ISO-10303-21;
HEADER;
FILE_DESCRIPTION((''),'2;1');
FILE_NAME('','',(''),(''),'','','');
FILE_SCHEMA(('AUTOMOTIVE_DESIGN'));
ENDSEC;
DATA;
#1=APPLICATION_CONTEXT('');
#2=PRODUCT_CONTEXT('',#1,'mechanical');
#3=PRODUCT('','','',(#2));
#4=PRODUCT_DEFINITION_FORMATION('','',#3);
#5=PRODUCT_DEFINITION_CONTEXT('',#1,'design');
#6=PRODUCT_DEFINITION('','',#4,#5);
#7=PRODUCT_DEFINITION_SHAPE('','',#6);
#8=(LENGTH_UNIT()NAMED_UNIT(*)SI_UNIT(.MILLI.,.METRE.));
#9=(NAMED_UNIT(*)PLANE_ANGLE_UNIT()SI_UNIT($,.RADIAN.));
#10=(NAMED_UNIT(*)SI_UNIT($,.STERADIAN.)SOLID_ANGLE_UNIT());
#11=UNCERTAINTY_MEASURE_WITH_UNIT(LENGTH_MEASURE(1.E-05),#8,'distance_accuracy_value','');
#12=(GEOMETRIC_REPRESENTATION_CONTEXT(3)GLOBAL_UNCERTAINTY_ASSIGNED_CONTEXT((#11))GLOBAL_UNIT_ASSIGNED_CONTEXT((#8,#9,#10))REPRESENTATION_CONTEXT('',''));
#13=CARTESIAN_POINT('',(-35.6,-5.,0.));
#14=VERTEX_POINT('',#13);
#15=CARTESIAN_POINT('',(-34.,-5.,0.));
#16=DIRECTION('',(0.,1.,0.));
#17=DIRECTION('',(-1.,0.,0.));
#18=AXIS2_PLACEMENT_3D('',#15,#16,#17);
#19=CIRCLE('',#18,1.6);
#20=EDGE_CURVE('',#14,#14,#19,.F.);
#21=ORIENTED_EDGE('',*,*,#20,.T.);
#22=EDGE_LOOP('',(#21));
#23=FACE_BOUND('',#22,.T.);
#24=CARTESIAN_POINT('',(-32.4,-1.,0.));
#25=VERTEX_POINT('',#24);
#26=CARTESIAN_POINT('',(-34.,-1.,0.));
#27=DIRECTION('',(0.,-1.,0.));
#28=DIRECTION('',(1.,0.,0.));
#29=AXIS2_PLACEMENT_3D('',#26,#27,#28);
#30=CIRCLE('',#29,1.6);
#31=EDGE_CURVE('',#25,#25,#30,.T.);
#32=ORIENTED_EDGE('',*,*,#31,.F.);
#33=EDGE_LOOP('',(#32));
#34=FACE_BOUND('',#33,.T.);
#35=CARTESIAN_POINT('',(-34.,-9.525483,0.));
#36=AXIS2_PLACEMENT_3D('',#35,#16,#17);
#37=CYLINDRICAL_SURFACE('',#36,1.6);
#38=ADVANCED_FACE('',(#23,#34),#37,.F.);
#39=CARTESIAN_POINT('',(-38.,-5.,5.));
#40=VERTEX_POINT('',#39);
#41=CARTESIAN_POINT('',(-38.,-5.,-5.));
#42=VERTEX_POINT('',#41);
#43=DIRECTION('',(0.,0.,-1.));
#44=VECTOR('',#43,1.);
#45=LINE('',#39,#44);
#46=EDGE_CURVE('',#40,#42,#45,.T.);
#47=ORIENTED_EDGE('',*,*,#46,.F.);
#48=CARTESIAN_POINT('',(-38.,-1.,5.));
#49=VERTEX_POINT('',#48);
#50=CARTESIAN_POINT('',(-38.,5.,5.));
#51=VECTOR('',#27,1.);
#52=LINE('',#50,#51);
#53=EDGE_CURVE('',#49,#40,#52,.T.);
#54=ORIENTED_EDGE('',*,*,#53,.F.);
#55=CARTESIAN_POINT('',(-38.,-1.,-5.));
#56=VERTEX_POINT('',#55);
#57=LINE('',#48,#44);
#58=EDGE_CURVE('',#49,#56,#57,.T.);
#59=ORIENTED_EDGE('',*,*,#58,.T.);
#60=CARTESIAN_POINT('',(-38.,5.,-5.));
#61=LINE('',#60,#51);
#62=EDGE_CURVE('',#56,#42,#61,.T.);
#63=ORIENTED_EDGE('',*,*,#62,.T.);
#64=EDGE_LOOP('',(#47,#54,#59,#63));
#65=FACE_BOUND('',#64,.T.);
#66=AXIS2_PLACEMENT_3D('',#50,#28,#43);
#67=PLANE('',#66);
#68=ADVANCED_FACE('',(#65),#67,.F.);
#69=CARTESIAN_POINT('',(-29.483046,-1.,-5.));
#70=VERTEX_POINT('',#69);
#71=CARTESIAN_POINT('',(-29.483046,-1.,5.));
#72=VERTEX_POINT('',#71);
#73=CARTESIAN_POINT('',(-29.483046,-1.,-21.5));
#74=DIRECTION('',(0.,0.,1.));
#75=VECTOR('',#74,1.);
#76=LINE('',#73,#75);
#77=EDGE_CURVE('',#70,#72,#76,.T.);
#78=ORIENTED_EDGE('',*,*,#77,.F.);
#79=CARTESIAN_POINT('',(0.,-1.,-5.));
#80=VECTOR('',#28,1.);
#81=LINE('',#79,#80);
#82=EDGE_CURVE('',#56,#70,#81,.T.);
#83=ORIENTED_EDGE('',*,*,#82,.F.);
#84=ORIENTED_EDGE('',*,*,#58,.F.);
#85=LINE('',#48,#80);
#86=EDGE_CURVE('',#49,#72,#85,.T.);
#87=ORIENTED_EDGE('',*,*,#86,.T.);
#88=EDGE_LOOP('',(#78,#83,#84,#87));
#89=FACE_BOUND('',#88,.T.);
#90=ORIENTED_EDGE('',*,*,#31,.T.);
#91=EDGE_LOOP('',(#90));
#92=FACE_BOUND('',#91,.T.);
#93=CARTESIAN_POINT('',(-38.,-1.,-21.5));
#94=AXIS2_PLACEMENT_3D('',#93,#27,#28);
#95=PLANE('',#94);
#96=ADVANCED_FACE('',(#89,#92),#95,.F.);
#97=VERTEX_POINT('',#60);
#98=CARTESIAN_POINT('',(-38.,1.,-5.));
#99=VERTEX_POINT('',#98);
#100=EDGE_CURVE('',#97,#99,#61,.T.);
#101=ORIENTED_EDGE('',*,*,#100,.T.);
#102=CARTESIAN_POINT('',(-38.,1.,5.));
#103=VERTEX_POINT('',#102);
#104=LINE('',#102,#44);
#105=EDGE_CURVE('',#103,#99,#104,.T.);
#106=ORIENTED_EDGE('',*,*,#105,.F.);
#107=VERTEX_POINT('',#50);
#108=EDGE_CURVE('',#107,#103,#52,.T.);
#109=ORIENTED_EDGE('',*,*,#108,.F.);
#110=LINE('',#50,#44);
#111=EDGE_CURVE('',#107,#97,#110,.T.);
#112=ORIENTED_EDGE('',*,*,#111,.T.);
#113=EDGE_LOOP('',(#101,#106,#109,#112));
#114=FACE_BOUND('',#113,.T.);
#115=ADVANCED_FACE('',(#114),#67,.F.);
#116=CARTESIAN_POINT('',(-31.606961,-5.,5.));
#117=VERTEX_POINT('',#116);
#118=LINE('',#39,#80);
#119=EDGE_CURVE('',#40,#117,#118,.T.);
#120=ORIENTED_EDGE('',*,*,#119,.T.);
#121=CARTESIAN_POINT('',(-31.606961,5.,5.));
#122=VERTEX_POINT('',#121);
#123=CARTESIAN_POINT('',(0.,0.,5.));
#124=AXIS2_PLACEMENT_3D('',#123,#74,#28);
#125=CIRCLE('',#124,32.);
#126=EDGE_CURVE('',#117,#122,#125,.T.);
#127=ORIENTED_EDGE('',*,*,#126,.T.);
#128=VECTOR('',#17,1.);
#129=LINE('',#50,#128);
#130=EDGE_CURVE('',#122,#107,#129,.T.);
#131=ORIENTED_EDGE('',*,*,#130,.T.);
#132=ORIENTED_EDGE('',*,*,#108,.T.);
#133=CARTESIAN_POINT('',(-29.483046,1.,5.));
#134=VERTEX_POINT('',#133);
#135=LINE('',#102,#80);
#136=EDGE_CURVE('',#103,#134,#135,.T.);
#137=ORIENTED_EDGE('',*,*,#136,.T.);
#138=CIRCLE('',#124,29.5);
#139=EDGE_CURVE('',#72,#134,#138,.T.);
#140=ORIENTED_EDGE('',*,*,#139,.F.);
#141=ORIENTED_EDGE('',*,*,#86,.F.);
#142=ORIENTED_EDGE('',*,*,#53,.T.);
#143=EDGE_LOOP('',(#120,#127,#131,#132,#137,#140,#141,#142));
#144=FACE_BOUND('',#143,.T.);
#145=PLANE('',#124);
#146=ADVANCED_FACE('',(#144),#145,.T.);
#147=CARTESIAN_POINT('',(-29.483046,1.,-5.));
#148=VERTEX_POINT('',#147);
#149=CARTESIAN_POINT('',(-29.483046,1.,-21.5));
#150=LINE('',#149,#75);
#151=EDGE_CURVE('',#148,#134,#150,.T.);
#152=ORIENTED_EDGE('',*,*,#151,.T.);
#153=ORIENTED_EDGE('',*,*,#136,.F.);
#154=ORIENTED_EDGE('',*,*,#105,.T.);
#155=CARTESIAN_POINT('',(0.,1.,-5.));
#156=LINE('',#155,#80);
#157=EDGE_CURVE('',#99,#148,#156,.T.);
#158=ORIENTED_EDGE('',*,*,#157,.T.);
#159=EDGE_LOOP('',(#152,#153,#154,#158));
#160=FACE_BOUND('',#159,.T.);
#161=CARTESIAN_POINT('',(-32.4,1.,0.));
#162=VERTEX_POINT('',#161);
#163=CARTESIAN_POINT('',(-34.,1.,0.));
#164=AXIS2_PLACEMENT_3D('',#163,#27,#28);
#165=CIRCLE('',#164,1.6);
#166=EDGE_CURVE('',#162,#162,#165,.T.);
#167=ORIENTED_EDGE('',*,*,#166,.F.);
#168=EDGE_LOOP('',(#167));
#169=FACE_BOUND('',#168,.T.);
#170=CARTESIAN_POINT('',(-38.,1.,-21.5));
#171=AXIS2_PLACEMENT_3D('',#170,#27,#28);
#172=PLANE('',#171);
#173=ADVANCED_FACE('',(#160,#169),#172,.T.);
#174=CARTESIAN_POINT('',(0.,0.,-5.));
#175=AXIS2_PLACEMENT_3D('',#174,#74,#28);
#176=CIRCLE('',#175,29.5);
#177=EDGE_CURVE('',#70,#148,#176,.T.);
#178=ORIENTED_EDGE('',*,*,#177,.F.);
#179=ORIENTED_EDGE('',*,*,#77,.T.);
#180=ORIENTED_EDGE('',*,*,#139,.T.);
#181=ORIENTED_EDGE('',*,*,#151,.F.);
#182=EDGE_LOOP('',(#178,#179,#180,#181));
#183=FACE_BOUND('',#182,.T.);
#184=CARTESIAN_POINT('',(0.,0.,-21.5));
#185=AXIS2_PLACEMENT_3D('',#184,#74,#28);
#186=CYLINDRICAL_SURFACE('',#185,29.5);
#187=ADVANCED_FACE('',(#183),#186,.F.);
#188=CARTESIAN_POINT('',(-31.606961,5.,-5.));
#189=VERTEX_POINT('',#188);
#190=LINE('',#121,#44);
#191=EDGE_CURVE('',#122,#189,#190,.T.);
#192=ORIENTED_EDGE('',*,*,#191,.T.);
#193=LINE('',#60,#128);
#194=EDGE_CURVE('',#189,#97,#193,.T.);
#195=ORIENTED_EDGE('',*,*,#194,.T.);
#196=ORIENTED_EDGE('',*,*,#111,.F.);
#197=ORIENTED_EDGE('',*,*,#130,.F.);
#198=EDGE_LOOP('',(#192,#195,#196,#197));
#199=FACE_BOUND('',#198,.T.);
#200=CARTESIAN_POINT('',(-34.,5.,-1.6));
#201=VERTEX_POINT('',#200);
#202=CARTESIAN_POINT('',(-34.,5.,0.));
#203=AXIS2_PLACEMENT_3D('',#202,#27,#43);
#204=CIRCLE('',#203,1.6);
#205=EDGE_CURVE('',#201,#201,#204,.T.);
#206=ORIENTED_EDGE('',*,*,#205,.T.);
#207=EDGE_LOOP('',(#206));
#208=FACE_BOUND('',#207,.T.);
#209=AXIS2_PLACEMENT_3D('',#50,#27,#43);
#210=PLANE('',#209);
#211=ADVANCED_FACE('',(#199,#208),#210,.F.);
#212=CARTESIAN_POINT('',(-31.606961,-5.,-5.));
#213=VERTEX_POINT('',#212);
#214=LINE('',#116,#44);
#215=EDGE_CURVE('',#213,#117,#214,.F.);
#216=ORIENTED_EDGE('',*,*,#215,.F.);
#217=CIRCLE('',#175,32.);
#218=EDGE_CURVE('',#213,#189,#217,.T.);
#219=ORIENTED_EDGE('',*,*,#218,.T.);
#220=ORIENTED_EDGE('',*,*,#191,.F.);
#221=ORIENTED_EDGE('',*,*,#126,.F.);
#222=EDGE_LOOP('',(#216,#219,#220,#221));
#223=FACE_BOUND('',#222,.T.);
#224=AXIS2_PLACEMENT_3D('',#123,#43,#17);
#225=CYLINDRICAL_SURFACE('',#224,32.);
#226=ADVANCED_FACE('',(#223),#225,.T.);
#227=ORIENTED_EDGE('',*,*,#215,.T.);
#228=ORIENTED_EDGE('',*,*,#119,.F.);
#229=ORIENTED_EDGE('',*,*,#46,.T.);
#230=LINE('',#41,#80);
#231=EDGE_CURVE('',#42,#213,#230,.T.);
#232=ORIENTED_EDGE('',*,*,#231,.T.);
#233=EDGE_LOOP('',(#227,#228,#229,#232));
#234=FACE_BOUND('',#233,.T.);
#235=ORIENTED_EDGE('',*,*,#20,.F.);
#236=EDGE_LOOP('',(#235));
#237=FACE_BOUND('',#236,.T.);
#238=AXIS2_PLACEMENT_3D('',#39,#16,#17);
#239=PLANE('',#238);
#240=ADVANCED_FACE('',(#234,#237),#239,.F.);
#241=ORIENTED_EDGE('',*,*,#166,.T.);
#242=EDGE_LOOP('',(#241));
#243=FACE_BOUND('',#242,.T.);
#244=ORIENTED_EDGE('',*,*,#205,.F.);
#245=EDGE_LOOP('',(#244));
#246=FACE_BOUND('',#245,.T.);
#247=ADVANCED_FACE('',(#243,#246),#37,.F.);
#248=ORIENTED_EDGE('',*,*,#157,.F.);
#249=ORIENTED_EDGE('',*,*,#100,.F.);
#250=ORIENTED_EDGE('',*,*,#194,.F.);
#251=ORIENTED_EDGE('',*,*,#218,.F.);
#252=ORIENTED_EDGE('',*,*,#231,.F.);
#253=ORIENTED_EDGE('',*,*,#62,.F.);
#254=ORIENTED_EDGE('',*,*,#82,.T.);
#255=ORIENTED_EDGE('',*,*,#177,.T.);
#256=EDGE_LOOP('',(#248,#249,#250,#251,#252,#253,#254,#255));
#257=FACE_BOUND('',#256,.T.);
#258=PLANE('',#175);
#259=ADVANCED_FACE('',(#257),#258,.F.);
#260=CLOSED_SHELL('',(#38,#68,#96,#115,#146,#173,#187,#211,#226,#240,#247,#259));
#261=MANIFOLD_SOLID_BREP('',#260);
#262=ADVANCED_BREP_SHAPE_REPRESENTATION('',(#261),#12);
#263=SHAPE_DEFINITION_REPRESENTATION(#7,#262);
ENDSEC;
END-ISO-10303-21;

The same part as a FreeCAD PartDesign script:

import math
import FreeCAD as App
import Part
import Sketcher
from FreeCAD import Vector
Q = App.Units.Quantity


def add_polygon(sketch, points):
    """Adds a closed chain of lines whose ends are joined by coincident constraints."""
    first, n = sketch.GeometryCount, len(points)
    for a, b in zip(points, points[1:] + points[:1]):
        sketch.addGeometry(Part.LineSegment(App.Vector(*a, 0), App.Vector(*b, 0)), False)
    for i in range(n):
        sketch.addConstraint(Sketcher.Constraint("Coincident", first + i, 2, first + (i + 1) % n, 1))

doc = App.newDocument("Part")
params = doc.addObject("Spreadsheet::Sheet", "Params")
for row, (alias, value) in enumerate([
    ("sketch1_diameter", "64 mm"),
    ("pad1_length", "10 mm"),
    ("sketch2_width", "38 mm"),
    ("sketch2_height", "10 mm"),
    ("pad2_length", "10 mm"),
    ("sketch3_radius", "29.5 mm"),
    ("sketch3_height", "2 mm"),
    ("pocket1_length", "26.5 mm"),
    ("sketch4_diameter", "3.2 mm"),
], start=1):
    params.set(f"A{row}", alias)
    params.set(f"B{row}", "=" + value)
    params.setAlias(f"B{row}", alias)

body = doc.addObject("PartDesign::Body", "Body")

sketch1 = body.newObject("Sketcher::SketchObject", "Sketch")
sketch1.AttachmentSupport = (doc.getObject("XY_Plane"), [""])
sketch1.MapMode = "FlatFace"
sketch1.addGeometry(Part.Circle(Vector(0, 0, 0), Vector(0, 0, 1), 32), False)
sketch1.addConstraint(Sketcher.Constraint("Coincident", 0, 3, -1, 1))
sketch1.addConstraint(Sketcher.Constraint("Diameter", 0, Q("64 mm")))
sketch1.setExpression("Constraints[1]", "Params.sketch1_diameter")
pad1 = body.newObject("PartDesign::Pad", "Pad")
pad1.Profile = sketch1
pad1.setExpression("Length", "Params.pad1_length")
pad1.Midplane = True

sketch2 = body.newObject("Sketcher::SketchObject", "Sketch001")
sketch2.AttachmentSupport = (doc.getObject("XY_Plane"), [""])
sketch2.MapMode = "FlatFace"
add_polygon(sketch2, [(-38, 5), (-38, -5), (0, -5), (0, 5)])
sketch2.addConstraint(Sketcher.Constraint("Vertical", 0))
sketch2.addConstraint(Sketcher.Constraint("Horizontal", 1))
sketch2.addConstraint(Sketcher.Constraint("Vertical", 2))
sketch2.addConstraint(Sketcher.Constraint("Horizontal", 3))
sketch2.addConstraint(Sketcher.Constraint("Symmetric", 1, 2, 2, 2, -1, 1))
sketch2.addConstraint(Sketcher.Constraint("DistanceX", 1, 1, 1, 2, Q("38 mm")))
sketch2.addConstraint(Sketcher.Constraint("DistanceY", 0, 2, 0, 1, Q("10 mm")))
sketch2.setExpression("Constraints[9]", "Params.sketch2_width")
sketch2.setExpression("Constraints[10]", "Params.sketch2_height")
pad2 = body.newObject("PartDesign::Pad", "Pad001")
pad2.Profile = sketch2
pad2.setExpression("Length", "Params.pad2_length")
pad2.Midplane = True

sketch3 = body.newObject("Sketcher::SketchObject", "Sketch002")
sketch3.AttachmentSupport = (doc.getObject("XY_Plane"), [""])
sketch3.MapMode = "FlatFace"
sketch3.AttachmentOffset = App.Placement(Vector(0, 0, 5), App.Rotation())
sketch3.addGeometry(Part.ArcOfCircle(Part.Circle(Vector(0, 0, 0), Vector(0, 0, 1), 29.5), math.radians(-178), math.radians(178)), False)
sketch3.addGeometry(Part.LineSegment(Vector(-29.5, 1, 0), Vector(-38, 1, 0)), False)
sketch3.addGeometry(Part.LineSegment(Vector(-38, 1, 0), Vector(-38, -1, 0)), False)
sketch3.addGeometry(Part.LineSegment(Vector(-38, -1, 0), Vector(-29.5, -1, 0)), False)
sketch3.addConstraint(Sketcher.Constraint("Coincident", 0, 2, 1, 1))
sketch3.addConstraint(Sketcher.Constraint("Coincident", 1, 2, 2, 1))
sketch3.addConstraint(Sketcher.Constraint("Coincident", 2, 2, 3, 1))
sketch3.addConstraint(Sketcher.Constraint("Coincident", 3, 2, 0, 1))
sketch3.addConstraint(Sketcher.Constraint("Horizontal", 1))
sketch3.addConstraint(Sketcher.Constraint("Vertical", 2))
sketch3.addConstraint(Sketcher.Constraint("Horizontal", 3))
sketch3.addConstraint(Sketcher.Constraint("Coincident", 0, 3, -1, 1))
sketch3.addConstraint(Sketcher.Constraint("Vertical", 0, 2, 3, 2))
sketch3.addConstraint(Sketcher.Constraint("Radius", 0, Q("29.5 mm")))
sketch3.addConstraint(Sketcher.Constraint("DistanceY", 2, 2, 2, 1, Q("2 mm")))
sketch3.addConstraint(Sketcher.Constraint("DistanceX", 1, 2, -1, 1, Q("38 mm")))
sketch3.setExpression("Constraints[9]", "Params.sketch3_radius")
sketch3.setExpression("Constraints[10]", "Params.sketch3_height")
pocket1 = body.newObject("PartDesign::Pocket", "Pocket")
pocket1.Profile = sketch3
pocket1.setExpression("Length", "Params.pocket1_length")

sketch4 = body.newObject("Sketcher::SketchObject", "Sketch003")
sketch4.AttachmentSupport = (doc.getObject("XZ_Plane"), [""])
sketch4.MapMode = "FlatFace"
sketch4.AttachmentOffset = App.Placement(Vector(0, 0, -5), App.Rotation())
sketch4.addGeometry(Part.Circle(Vector(-34, 0, 0), Vector(0, 0, 1), 1.6), False)
sketch4.addConstraint(Sketcher.Constraint("PointOnObject", 0, 3, -1))
sketch4.addConstraint(Sketcher.Constraint("Diameter", 0, Q("3.2 mm")))
sketch4.addConstraint(Sketcher.Constraint("DistanceX", 0, 3, -1, 1, Q("34 mm")))
sketch4.setExpression("Constraints[1]", "Params.sketch4_diameter")
pocket2 = body.newObject("PartDesign::Pocket", "Pocket001")
pocket2.Profile = sketch4
pocket2.Type = "ThroughAll"
pocket2.Midplane = True

doc.recompute()
